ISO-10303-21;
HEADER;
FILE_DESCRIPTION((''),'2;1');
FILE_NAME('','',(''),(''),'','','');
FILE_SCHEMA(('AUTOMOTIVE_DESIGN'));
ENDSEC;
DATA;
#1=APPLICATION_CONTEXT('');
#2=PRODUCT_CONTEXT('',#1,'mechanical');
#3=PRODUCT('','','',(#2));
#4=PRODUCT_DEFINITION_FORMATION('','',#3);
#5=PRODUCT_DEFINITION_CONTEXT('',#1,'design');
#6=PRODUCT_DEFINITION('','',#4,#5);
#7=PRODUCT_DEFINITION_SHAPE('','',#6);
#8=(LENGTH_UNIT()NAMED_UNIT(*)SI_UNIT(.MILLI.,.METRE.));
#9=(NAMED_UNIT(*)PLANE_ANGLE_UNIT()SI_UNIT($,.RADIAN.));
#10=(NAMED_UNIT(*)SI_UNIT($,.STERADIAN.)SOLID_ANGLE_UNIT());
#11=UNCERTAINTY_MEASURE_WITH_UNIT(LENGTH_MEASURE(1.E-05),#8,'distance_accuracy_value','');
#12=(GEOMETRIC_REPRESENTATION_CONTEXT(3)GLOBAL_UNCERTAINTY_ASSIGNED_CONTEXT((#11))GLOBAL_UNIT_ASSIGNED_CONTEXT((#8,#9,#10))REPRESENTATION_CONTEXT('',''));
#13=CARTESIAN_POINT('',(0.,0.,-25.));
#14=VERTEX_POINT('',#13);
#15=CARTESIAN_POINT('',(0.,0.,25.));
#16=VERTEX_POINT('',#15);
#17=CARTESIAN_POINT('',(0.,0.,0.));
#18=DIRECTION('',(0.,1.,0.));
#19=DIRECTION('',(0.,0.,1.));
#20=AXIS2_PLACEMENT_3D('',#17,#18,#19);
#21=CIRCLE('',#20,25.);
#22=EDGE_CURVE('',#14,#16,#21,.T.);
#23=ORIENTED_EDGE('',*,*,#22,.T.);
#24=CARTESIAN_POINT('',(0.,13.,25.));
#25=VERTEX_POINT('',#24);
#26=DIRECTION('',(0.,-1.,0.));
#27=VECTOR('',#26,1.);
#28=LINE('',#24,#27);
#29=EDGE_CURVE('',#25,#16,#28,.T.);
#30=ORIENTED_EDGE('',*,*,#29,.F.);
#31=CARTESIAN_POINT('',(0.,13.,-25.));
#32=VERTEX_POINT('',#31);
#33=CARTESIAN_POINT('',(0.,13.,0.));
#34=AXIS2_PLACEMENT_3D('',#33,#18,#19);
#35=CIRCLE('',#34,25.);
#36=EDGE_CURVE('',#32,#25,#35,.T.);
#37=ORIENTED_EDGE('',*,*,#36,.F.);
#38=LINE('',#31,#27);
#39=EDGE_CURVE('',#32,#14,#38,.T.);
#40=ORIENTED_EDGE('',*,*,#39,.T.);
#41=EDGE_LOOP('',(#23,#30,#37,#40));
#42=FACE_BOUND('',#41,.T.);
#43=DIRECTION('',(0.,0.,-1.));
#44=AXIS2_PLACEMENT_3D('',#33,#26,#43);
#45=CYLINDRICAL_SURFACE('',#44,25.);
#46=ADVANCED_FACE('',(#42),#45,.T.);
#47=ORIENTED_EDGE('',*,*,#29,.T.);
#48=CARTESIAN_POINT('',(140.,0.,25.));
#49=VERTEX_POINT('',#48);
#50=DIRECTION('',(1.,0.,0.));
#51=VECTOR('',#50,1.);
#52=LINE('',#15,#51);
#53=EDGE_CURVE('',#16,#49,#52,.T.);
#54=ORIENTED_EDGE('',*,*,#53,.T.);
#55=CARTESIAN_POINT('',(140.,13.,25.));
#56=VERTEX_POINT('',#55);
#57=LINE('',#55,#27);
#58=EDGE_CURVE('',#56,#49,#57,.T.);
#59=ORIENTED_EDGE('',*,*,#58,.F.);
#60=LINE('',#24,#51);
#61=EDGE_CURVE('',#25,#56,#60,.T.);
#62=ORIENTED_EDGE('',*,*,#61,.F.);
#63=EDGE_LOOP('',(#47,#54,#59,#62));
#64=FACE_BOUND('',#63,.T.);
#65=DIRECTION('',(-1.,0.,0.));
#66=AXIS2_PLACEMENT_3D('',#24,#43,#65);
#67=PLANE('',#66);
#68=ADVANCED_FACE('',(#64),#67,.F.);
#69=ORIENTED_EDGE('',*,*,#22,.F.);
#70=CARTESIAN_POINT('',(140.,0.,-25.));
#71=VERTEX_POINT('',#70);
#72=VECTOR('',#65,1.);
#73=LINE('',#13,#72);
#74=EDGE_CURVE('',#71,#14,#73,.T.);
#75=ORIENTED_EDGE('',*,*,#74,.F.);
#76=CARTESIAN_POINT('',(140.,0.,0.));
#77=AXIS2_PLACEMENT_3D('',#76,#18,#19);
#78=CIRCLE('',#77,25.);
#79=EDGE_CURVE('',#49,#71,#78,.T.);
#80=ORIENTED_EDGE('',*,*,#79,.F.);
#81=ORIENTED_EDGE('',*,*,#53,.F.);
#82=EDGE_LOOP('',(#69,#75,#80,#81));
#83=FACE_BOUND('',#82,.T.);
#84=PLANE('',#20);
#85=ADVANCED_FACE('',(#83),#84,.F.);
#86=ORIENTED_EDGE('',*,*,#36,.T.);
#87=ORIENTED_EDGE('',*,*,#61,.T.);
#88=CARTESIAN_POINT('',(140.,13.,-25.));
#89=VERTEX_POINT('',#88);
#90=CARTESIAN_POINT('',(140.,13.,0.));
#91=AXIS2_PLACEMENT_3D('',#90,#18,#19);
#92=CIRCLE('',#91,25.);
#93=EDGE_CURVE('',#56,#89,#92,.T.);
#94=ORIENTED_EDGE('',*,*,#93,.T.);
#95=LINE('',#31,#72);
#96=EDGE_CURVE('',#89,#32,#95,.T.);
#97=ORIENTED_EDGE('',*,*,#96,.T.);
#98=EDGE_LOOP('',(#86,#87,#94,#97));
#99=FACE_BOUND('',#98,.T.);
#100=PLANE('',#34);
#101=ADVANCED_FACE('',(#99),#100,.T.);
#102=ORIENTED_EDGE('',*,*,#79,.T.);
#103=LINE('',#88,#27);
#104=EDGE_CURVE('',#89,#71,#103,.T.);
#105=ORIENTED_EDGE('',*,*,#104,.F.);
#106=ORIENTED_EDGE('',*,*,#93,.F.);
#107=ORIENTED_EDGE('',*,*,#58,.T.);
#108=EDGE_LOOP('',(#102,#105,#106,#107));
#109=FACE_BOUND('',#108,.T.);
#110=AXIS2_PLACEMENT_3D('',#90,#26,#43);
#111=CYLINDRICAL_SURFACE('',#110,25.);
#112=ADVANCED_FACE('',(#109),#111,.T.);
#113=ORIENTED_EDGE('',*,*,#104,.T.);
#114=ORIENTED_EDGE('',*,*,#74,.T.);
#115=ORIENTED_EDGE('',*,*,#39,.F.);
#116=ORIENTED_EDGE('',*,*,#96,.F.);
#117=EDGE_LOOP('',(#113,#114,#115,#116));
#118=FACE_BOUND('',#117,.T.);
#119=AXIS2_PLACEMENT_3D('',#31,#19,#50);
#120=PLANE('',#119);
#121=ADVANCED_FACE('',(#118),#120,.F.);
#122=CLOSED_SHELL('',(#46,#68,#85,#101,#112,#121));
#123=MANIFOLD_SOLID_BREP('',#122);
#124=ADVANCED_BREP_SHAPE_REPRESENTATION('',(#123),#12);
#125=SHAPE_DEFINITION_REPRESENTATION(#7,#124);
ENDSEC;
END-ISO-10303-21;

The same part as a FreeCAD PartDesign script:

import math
import FreeCAD as App
import Part
import Sketcher
from FreeCAD import Vector

doc = App.newDocument("Part")
body = doc.addObject("PartDesign::Body", "Body")

sketch1 = body.newObject("Sketcher::SketchObject", "Sketch")
sketch1.AttachmentSupport = (doc.getObject("XZ_Plane"), [""])
sketch1.MapMode = "FlatFace"
sketch1.addGeometry(Part.LineSegment(Vector(140, -25, 0), Vector(0, -25, 0)), False)
sketch1.addGeometry(Part.ArcOfCircle(Part.Circle(Vector(0, 0, 0), Vector(0, 0, 1), 25), math.radians(90), math.radians(270)), False)
sketch1.addGeometry(Part.LineSegment(Vector(0, 25, 0), Vector(140, 25, 0)), False)
sketch1.addGeometry(Part.ArcOfCircle(Part.Circle(Vector(140, 0, 0), Vector(0, 0, 1), 25), math.radians(-90), math.radians(90)), False)
sketch1.addConstraint(Sketcher.Constraint("Tangent", 0, 2, 1, 2))
sketch1.addConstraint(Sketcher.Constraint("Tangent", 1, 1, 2, 1))
sketch1.addConstraint(Sketcher.Constraint("Tangent", 2, 2, 3, 2))
sketch1.addConstraint(Sketcher.Constraint("Tangent", 3, 1, 0, 1))
sketch1.addConstraint(Sketcher.Constraint("Horizontal", 0))
sketch1.addConstraint(Sketcher.Constraint("Horizontal", 2))
sketch1.addConstraint(Sketcher.Constraint("Coincident", 1, 3, -1, 1))
sketch1.addConstraint(Sketcher.Constraint("Radius", 1, 25.0))
sketch1.addConstraint(Sketcher.Constraint("DistanceX", 0, 2, 0, 1, 140.0))
pad1 = body.newObject("PartDesign::Pad", "Pad")
pad1.Profile = sketch1
pad1.Length = 13
pad1.Reversed = True

doc.recompute()
